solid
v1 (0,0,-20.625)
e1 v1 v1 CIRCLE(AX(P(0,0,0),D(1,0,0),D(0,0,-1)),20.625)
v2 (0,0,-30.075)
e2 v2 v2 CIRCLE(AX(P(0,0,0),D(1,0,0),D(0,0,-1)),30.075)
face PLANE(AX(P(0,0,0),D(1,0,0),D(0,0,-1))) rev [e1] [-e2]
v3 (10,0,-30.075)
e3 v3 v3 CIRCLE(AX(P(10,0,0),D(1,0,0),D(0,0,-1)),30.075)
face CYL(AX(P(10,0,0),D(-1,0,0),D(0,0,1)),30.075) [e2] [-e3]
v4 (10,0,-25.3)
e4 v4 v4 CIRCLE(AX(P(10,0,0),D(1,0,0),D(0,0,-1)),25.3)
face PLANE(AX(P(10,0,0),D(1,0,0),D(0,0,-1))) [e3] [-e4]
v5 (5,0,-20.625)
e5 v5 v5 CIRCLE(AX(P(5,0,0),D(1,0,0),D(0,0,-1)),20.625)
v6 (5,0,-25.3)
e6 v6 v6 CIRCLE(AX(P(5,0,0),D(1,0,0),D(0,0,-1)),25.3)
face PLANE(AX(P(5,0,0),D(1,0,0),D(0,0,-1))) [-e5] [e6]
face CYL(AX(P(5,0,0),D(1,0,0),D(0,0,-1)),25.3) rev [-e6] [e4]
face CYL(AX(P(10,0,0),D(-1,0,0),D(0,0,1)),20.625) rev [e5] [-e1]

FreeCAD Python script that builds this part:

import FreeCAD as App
import Part
import Sketcher
from FreeCAD import Vector
Q = App.Units.Quantity

doc = App.newDocument("Part")
body = doc.addObject("PartDesign::Body", "Body")

# Sketch on YZ plane
sketch1 = body.newObject("Sketcher::SketchObject", "Sketch")
sketch1.AttachmentSupport = (doc.getObject("YZ_Plane"), [""])
sketch1.MapMode = "FlatFace"
sketch1.addGeometry([
    Part.Circle(Vector(0, 0, 0), Vector(0, 0, 1), 30),
    Part.Circle(Vector(0, 0, 0), Vector(0, 0, 1), 21),
], False)
sketch1.addConstraint([
    Sketcher.Constraint("Coincident", 0, 3, -1, 1),
    Sketcher.Constraint("Coincident", 1, 3, -1, 1),
    Sketcher.Constraint("Diameter", 0, Q("60.15 mm")),
    Sketcher.Constraint("Diameter", 1, Q("41.25 mm")),
])
pad1 = body.newObject("PartDesign::Pad", "Pad")
pad1.Profile = sketch1
pad1.Length = 10

# Sketch on YZ plane
sketch2 = body.newObject("Sketcher::SketchObject", "Sketch001")
sketch2.AttachmentSupport = (doc.getObject("YZ_Plane"), [""])
sketch2.MapMode = "FlatFace"
sketch2.AttachmentOffset = App.Placement(Vector(0, 0, 10), App.Rotation())
sketch2.addGeometry(Part.Circle(Vector(0, 0, 0), Vector(0, 0, 1), 25), False)
sketch2.addConstraint([
    Sketcher.Constraint("Coincident", 0, 3, -1, 1),
    Sketcher.Constraint("Diameter", 0, Q("50.6 mm")),
])
pocket1 = body.newObject("PartDesign::Pocket", "Pocket")
pocket1.Profile = sketch2
pocket1.Length = 5

doc.recompute()
